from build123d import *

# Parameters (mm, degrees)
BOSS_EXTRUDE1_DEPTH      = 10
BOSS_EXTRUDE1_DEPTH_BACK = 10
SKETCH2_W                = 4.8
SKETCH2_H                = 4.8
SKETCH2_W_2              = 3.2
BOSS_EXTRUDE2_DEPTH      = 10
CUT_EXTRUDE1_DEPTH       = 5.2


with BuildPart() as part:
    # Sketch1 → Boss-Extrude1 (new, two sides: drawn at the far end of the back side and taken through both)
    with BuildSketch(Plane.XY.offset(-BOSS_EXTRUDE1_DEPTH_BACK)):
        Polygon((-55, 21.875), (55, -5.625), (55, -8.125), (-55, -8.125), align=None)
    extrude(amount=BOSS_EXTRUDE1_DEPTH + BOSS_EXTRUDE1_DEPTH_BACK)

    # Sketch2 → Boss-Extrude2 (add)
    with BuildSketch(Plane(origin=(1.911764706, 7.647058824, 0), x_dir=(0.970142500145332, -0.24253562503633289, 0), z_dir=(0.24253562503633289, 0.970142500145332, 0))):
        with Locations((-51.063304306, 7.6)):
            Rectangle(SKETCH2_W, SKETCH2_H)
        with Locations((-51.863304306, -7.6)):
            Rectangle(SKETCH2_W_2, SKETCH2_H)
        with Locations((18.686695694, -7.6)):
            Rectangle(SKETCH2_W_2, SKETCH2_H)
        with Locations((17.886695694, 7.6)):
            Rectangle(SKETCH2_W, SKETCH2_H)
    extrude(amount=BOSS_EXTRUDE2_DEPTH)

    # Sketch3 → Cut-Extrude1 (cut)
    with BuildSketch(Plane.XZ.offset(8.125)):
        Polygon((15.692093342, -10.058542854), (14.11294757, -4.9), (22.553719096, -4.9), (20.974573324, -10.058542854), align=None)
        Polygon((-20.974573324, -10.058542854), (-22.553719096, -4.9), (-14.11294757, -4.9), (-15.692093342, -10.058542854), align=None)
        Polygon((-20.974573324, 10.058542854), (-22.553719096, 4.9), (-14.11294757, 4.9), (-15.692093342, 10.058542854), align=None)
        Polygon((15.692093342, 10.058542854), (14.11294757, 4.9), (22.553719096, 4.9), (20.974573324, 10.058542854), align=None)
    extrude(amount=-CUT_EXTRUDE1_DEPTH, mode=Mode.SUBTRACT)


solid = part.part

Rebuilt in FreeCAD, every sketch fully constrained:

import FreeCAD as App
import Part
import Sketcher

V = App.Vector

doc = App.newDocument("Part")
body = doc.addObject("PartDesign::Body", "Body")

# Sketch on XY plane
sketch1 = body.newObject("Sketcher::SketchObject", "Sketch")
sketch1.AttachmentSupport = (doc.getObject("XY_Plane"), [""])
sketch1.MapMode = "FlatFace"
sketch1.addGeometry(Part.LineSegment(V(55, -5.625, 0), V(-55, 21.875, 0)), False)
sketch1.addGeometry(Part.LineSegment(V(-55, 21.875, 0), V(-55, -8.125, 0)), False)
sketch1.addGeometry(Part.LineSegment(V(-55, -8.125, 0), V(55, -8.125, 0)), False)
sketch1.addGeometry(Part.LineSegment(V(55, -8.125, 0), V(55, -5.625, 0)), False)
sketch1.addConstraint(Sketcher.Constraint("Coincident", 0, 2, 1, 1))
sketch1.addConstraint(Sketcher.Constraint("Coincident", 1, 2, 2, 1))
sketch1.addConstraint(Sketcher.Constraint("Coincident", 2, 2, 3, 1))
sketch1.addConstraint(Sketcher.Constraint("Coincident", 3, 2, 0, 1))
sketch1.addConstraint(Sketcher.Constraint("Vertical", 1))
sketch1.addConstraint(Sketcher.Constraint("Horizontal", 2))
sketch1.addConstraint(Sketcher.Constraint("Vertical", 3))
sketch1.addConstraint(Sketcher.Constraint("DistanceX", 2, 1, 2, 2, 110.0))
sketch1.addConstraint(Sketcher.Constraint("DistanceY", 1, 2, 1, 1, 30.0))
sketch1.addConstraint(Sketcher.Constraint("DistanceY", 3, 1, 3, 2, 2.5))
sketch1.addConstraint(Sketcher.Constraint("DistanceX", 0, 2, -1, 1, 55.0))
sketch1.addConstraint(Sketcher.Constraint("DistanceY", -1, 1, 0, 2, 21.875))
pad1 = body.newObject("PartDesign::Pad", "Pad")
pad1.Profile = sketch1
pad1.Type = "TwoLengths"
pad1.Length = 10
pad1.Length2 = 10

# Sketch on an angled plane
sketch2 = body.newObject("Sketcher::SketchObject", "Sketch001")
sketch2.Placement = App.Placement(V(1.911765, 7.647059, 0), App.Rotation(V(0.9701425, -0.242535625, 0), V(0, 0, -1), V(0.242535625, 0.9701425, 0), "ZXY"))
sketch2.addGeometry(Part.LineSegment(V(-53.463304, 10, 0), V(-53.463304, 5.2, 0)), False)
sketch2.addGeometry(Part.LineSegment(V(-53.463304, 5.2, 0), V(-48.663304, 5.2, 0)), False)
sketch2.addGeometry(Part.LineSegment(V(-48.663304, 5.2, 0), V(-48.663304, 10, 0)), False)
sketch2.addGeometry(Part.LineSegment(V(-48.663304, 10, 0), V(-53.463304, 10, 0)), False)
sketch2.addGeometry(Part.LineSegment(V(-53.463304, -5.2, 0), V(-53.463304, -10, 0)), False)
sketch2.addGeometry(Part.LineSegment(V(-53.463304, -10, 0), V(-50.263304, -10, 0)), False)
sketch2.addGeometry(Part.LineSegment(V(-50.263304, -10, 0), V(-50.263304, -5.2, 0)), False)
sketch2.addGeometry(Part.LineSegment(V(-50.263304, -5.2, 0), V(-53.463304, -5.2, 0)), False)
sketch2.addGeometry(Part.LineSegment(V(17.086696, -5.2, 0), V(17.086696, -10, 0)), False)
sketch2.addGeometry(Part.LineSegment(V(17.086696, -10, 0), V(20.286696, -10, 0)), False)
sketch2.addGeometry(Part.LineSegment(V(20.286696, -10, 0), V(20.286696, -5.2, 0)), False)
sketch2.addGeometry(Part.LineSegment(V(20.286696, -5.2, 0), V(17.086696, -5.2, 0)), False)
sketch2.addGeometry(Part.LineSegment(V(15.486696, 10, 0), V(15.486696, 5.2, 0)), False)
sketch2.addGeometry(Part.LineSegment(V(15.486696, 5.2, 0), V(20.286696, 5.2, 0)), False)
sketch2.addGeometry(Part.LineSegment(V(20.286696, 5.2, 0), V(20.286696, 10, 0)), False)
sketch2.addGeometry(Part.LineSegment(V(20.286696, 10, 0), V(15.486696, 10, 0)), False)
sketch2.addConstraint(Sketcher.Constraint("Coincident", 0, 2, 1, 1))
sketch2.addConstraint(Sketcher.Constraint("Coincident", 1, 2, 2, 1))
sketch2.addConstraint(Sketcher.Constraint("Coincident", 2, 2, 3, 1))
sketch2.addConstraint(Sketcher.Constraint("Coincident", 3, 2, 0, 1))
sketch2.addConstraint(Sketcher.Constraint("Coincident", 4, 2, 5, 1))
sketch2.addConstraint(Sketcher.Constraint("Coincident", 5, 2, 6, 1))
sketch2.addConstraint(Sketcher.Constraint("Coincident", 6, 2, 7, 1))
sketch2.addConstraint(Sketcher.Constraint("Coincident", 7, 2, 4, 1))
sketch2.addConstraint(Sketcher.Constraint("Coincident", 8, 2, 9, 1))
sketch2.addConstraint(Sketcher.Constraint("Coincident", 9, 2, 10, 1))
sketch2.addConstraint(Sketcher.Constraint("Coincident", 10, 2, 11, 1))
sketch2.addConstraint(Sketcher.Constraint("Coincident", 11, 2, 8, 1))
sketch2.addConstraint(Sketcher.Constraint("Coincident", 12, 2, 13, 1))
sketch2.addConstraint(Sketcher.Constraint("Coincident", 13, 2, 14, 1))
sketch2.addConstraint(Sketcher.Constraint("Coincident", 14, 2, 15, 1))
sketch2.addConstraint(Sketcher.Constraint("Coincident", 15, 2, 12, 1))
sketch2.addConstraint(Sketcher.Constraint("Vertical", 0))
sketch2.addConstraint(Sketcher.Constraint("Horizontal", 1))
sketch2.addConstraint(Sketcher.Constraint("Vertical", 2))
sketch2.addConstraint(Sketcher.Constraint("Horizontal", 3))
sketch2.addConstraint(Sketcher.Constraint("Vertical", 4))
sketch2.addConstraint(Sketcher.Constraint("Horizontal", 5))
sketch2.addConstraint(Sketcher.Constraint("Vertical", 6))
sketch2.addConstraint(Sketcher.Constraint("Horizontal", 7))
sketch2.addConstraint(Sketcher.Constraint("Vertical", 8))
sketch2.addConstraint(Sketcher.Constraint("Horizontal", 9))
sketch2.addConstraint(Sketcher.Constraint("Vertical", 10))
sketch2.addConstraint(Sketcher.Constraint("Horizontal", 11))
sketch2.addConstraint(Sketcher.Constraint("Vertical", 12))
sketch2.addConstraint(Sketcher.Constraint("Horizontal", 13))
sketch2.addConstraint(Sketcher.Constraint("Vertical", 14))
sketch2.addConstraint(Sketcher.Constraint("Horizontal", 15))
sketch2.addConstraint(Sketcher.Constraint("Symmetric", 3, 2, 4, 2, -1))
sketch2.addConstraint(Sketcher.Constraint("Symmetric", 10, 2, 13, 2, -1))
sketch2.addConstraint(Sketcher.Constraint("Horizontal", 5, 2, 8, 2))
sketch2.addConstraint(Sketcher.Constraint("Horizontal", 7, 2, 10, 2))
sketch2.addConstraint(Sketcher.Constraint("Horizontal", 1, 2, 12, 2))
sketch2.addConstraint(Sketcher.Constraint("Horizontal", 3, 2, 14, 2))
sketch2.addConstraint(Sketcher.Constraint("Equal", 7, 9))
sketch2.addConstraint(Sketcher.Constraint("Equal", 3, 13))
sketch2.addConstraint(Sketcher.Constraint("Equal", 15, 0))
sketch2.addConstraint(Sketcher.Constraint("DistanceX", 1, 1, 1, 2, 4.8))
sketch2.addConstraint(Sketcher.Constraint("DistanceX", 5, 1, 5, 2, 3.2))
sketch2.addConstraint(Sketcher.Constraint("DistanceY", -1, 1, 2, 2, 10.0))
sketch2.addConstraint(Sketcher.Constraint("DistanceX", 5, 2, 8, 2, 67.35))
sketch2.addConstraint(Sketcher.Constraint("DistanceX", 0, 2, -1, 1, 53.463304))
pad2 = body.newObject("PartDesign::Pad", "Pad001")
pad2.Profile = sketch2
pad2.Length = 10

# Sketch on XZ plane
sketch3 = body.newObject("Sketcher::SketchObject", "Sketch002")
sketch3.AttachmentSupport = (doc.getObject("XZ_Plane"), [""])
sketch3.MapMode = "FlatFace"
sketch3.AttachmentOffset = App.Placement(V(0, 0, 8.125), App.Rotation())
sketch3.addGeometry(Part.LineSegment(V(14.112948, -4.9, 0), V(15.692093, -10.058543, 0)), False)
sketch3.addGeometry(Part.LineSegment(V(15.692093, -10.058543, 0), V(20.974573, -10.058543, 0)), False)
sketch3.addGeometry(Part.LineSegment(V(20.974573, -10.058543, 0), V(22.553719, -4.9, 0)), False)
sketch3.addGeometry(Part.LineSegment(V(22.553719, -4.9, 0), V(14.112948, -4.9, 0)), False)
sketch3.addGeometry(Part.LineSegment(V(-22.553719, -4.9, 0), V(-20.974573, -10.058543, 0)), False)
sketch3.addGeometry(Part.LineSegment(V(-20.974573, -10.058543, 0), V(-15.692093, -10.058543, 0)), False)
sketch3.addGeometry(Part.LineSegment(V(-15.692093, -10.058543, 0), V(-14.112948, -4.9, 0)), False)
sketch3.addGeometry(Part.LineSegment(V(-14.112948, -4.9, 0), V(-22.553719, -4.9, 0)), False)
sketch3.addGeometry(Part.LineSegment(V(-20.974573, 10.058543, 0), V(-22.553719, 4.9, 0)), False)
sketch3.addGeometry(Part.LineSegment(V(-22.553719, 4.9, 0), V(-14.112948, 4.9, 0)), False)
sketch3.addGeometry(Part.LineSegment(V(-14.112948, 4.9, 0), V(-15.692093, 10.058543, 0)), False)
sketch3.addGeometry(Part.LineSegment(V(-15.692093, 10.058543, 0), V(-20.974573, 10.058543, 0)), False)
sketch3.addGeometry(Part.LineSegment(V(15.692093, 10.058543, 0), V(14.112948, 4.9, 0)), False)
sketch3.addGeometry(Part.LineSegment(V(14.112948, 4.9, 0), V(22.553719, 4.9, 0)), False)
sketch3.addGeometry(Part.LineSegment(V(22.553719, 4.9, 0), V(20.974573, 10.058543, 0)), False)
sketch3.addGeometry(Part.LineSegment(V(20.974573, 10.058543, 0), V(15.692093, 10.058543, 0)), False)
sketch3.addConstraint(Sketcher.Constraint("Coincident", 0, 2, 1, 1))
sketch3.addConstraint(Sketcher.Constraint("Coincident", 1, 2, 2, 1))
sketch3.addConstraint(Sketcher.Constraint("Coincident", 2, 2, 3, 1))
sketch3.addConstraint(Sketcher.Constraint("Coincident", 3, 2, 0, 1))
sketch3.addConstraint(Sketcher.Constraint("Coincident", 4, 2, 5, 1))
sketch3.addConstraint(Sketcher.Constraint("Coincident", 5, 2, 6, 1))
sketch3.addConstraint(Sketcher.Constraint("Coincident", 6, 2, 7, 1))
sketch3.addConstraint(Sketcher.Constraint("Coincident", 7, 2, 4, 1))
sketch3.addConstraint(Sketcher.Constraint("Coincident", 8, 2, 9, 1))
sketch3.addConstraint(Sketcher.Constraint("Coincident", 9, 2, 10, 1))
sketch3.addConstraint(Sketcher.Constraint("Coincident", 10, 2, 11, 1))
sketch3.addConstraint(Sketcher.Constraint("Coincident", 11, 2, 8, 1))
sketch3.addConstraint(Sketcher.Constraint("Coincident", 12, 2, 13, 1))
sketch3.addConstraint(Sketcher.Constraint("Coincident", 13, 2, 14, 1))
sketch3.addConstraint(Sketcher.Constraint("Coincident", 14, 2, 15, 1))
sketch3.addConstraint(Sketcher.Constraint("Coincident", 15, 2, 12, 1))
sketch3.addConstraint(Sketcher.Constraint("Horizontal", 1))
sketch3.addConstraint(Sketcher.Constraint("Horizontal", 3))
sketch3.addConstraint(Sketcher.Constraint("Horizontal", 5))
sketch3.addConstraint(Sketcher.Constraint("Horizontal", 7))
sketch3.addConstraint(Sketcher.Constraint("Horizontal", 9))
sketch3.addConstraint(Sketcher.Constraint("Horizontal", 11))
sketch3.addConstraint(Sketcher.Constraint("Horizontal", 13))
sketch3.addConstraint(Sketcher.Constraint("Horizontal", 15))
sketch3.addConstraint(Sketcher.Constraint("Symmetric", 2, 2, 8, 2, -1, 1))
sketch3.addConstraint(Sketcher.Constraint("Symmetric", 0, 2, 10, 2, -1, 1))
sketch3.addConstraint(Sketcher.Constraint("Symmetric", 6, 2, 12, 2, -1, 1))
sketch3.addConstraint(Sketcher.Constraint("Symmetric", 4, 2, 14, 2, -1, 1))
sketch3.addConstraint(Sketcher.Constraint("Symmetric", 1, 2, 4, 2, -2))
sketch3.addConstraint(Sketcher.Constraint("Symmetric", 3, 2, 6, 2, -2))
sketch3.addConstraint(Sketcher.Constraint("Parallel", 0, 4))
sketch3.addConstraint(Sketcher.Constraint("Parallel", 2, 6))
sketch3.addConstraint(Sketcher.Constraint("Parallel", 6, 8))
sketch3.addConstraint(Sketcher.Constraint("Parallel", 4, 10))
sketch3.addConstraint(Sketcher.Constraint("Parallel", 8, 12))
sketch3.addConstraint(Sketcher.Constraint("Parallel", 10, 14))
sketch3.addConstraint(Sketcher.Constraint("Vertical", 7, 2, 8, 2))
sketch3.addConstraint(Sketcher.Constraint("DistanceY", 2, 2, -1, 1, 4.9))
sketch3.addConstraint(Sketcher.Constraint("DistanceX", 1, 1, 1, 2, 5.28248))
sketch3.addConstraint(Sketcher.Constraint("DistanceX", 3, 2, 3, 1, 8.440772))
sketch3.addConstraint(Sketcher.Constraint("DistanceX", -1, 1, 2, 2, 22.553719))
sketch3.addConstraint(Sketcher.Constraint("Distance", 0, 5.394837))
pocket1 = body.newObject("PartDesign::Pocket", "Pocket")
pocket1.Profile = sketch3
pocket1.Length = 5.2

doc.recompute()
